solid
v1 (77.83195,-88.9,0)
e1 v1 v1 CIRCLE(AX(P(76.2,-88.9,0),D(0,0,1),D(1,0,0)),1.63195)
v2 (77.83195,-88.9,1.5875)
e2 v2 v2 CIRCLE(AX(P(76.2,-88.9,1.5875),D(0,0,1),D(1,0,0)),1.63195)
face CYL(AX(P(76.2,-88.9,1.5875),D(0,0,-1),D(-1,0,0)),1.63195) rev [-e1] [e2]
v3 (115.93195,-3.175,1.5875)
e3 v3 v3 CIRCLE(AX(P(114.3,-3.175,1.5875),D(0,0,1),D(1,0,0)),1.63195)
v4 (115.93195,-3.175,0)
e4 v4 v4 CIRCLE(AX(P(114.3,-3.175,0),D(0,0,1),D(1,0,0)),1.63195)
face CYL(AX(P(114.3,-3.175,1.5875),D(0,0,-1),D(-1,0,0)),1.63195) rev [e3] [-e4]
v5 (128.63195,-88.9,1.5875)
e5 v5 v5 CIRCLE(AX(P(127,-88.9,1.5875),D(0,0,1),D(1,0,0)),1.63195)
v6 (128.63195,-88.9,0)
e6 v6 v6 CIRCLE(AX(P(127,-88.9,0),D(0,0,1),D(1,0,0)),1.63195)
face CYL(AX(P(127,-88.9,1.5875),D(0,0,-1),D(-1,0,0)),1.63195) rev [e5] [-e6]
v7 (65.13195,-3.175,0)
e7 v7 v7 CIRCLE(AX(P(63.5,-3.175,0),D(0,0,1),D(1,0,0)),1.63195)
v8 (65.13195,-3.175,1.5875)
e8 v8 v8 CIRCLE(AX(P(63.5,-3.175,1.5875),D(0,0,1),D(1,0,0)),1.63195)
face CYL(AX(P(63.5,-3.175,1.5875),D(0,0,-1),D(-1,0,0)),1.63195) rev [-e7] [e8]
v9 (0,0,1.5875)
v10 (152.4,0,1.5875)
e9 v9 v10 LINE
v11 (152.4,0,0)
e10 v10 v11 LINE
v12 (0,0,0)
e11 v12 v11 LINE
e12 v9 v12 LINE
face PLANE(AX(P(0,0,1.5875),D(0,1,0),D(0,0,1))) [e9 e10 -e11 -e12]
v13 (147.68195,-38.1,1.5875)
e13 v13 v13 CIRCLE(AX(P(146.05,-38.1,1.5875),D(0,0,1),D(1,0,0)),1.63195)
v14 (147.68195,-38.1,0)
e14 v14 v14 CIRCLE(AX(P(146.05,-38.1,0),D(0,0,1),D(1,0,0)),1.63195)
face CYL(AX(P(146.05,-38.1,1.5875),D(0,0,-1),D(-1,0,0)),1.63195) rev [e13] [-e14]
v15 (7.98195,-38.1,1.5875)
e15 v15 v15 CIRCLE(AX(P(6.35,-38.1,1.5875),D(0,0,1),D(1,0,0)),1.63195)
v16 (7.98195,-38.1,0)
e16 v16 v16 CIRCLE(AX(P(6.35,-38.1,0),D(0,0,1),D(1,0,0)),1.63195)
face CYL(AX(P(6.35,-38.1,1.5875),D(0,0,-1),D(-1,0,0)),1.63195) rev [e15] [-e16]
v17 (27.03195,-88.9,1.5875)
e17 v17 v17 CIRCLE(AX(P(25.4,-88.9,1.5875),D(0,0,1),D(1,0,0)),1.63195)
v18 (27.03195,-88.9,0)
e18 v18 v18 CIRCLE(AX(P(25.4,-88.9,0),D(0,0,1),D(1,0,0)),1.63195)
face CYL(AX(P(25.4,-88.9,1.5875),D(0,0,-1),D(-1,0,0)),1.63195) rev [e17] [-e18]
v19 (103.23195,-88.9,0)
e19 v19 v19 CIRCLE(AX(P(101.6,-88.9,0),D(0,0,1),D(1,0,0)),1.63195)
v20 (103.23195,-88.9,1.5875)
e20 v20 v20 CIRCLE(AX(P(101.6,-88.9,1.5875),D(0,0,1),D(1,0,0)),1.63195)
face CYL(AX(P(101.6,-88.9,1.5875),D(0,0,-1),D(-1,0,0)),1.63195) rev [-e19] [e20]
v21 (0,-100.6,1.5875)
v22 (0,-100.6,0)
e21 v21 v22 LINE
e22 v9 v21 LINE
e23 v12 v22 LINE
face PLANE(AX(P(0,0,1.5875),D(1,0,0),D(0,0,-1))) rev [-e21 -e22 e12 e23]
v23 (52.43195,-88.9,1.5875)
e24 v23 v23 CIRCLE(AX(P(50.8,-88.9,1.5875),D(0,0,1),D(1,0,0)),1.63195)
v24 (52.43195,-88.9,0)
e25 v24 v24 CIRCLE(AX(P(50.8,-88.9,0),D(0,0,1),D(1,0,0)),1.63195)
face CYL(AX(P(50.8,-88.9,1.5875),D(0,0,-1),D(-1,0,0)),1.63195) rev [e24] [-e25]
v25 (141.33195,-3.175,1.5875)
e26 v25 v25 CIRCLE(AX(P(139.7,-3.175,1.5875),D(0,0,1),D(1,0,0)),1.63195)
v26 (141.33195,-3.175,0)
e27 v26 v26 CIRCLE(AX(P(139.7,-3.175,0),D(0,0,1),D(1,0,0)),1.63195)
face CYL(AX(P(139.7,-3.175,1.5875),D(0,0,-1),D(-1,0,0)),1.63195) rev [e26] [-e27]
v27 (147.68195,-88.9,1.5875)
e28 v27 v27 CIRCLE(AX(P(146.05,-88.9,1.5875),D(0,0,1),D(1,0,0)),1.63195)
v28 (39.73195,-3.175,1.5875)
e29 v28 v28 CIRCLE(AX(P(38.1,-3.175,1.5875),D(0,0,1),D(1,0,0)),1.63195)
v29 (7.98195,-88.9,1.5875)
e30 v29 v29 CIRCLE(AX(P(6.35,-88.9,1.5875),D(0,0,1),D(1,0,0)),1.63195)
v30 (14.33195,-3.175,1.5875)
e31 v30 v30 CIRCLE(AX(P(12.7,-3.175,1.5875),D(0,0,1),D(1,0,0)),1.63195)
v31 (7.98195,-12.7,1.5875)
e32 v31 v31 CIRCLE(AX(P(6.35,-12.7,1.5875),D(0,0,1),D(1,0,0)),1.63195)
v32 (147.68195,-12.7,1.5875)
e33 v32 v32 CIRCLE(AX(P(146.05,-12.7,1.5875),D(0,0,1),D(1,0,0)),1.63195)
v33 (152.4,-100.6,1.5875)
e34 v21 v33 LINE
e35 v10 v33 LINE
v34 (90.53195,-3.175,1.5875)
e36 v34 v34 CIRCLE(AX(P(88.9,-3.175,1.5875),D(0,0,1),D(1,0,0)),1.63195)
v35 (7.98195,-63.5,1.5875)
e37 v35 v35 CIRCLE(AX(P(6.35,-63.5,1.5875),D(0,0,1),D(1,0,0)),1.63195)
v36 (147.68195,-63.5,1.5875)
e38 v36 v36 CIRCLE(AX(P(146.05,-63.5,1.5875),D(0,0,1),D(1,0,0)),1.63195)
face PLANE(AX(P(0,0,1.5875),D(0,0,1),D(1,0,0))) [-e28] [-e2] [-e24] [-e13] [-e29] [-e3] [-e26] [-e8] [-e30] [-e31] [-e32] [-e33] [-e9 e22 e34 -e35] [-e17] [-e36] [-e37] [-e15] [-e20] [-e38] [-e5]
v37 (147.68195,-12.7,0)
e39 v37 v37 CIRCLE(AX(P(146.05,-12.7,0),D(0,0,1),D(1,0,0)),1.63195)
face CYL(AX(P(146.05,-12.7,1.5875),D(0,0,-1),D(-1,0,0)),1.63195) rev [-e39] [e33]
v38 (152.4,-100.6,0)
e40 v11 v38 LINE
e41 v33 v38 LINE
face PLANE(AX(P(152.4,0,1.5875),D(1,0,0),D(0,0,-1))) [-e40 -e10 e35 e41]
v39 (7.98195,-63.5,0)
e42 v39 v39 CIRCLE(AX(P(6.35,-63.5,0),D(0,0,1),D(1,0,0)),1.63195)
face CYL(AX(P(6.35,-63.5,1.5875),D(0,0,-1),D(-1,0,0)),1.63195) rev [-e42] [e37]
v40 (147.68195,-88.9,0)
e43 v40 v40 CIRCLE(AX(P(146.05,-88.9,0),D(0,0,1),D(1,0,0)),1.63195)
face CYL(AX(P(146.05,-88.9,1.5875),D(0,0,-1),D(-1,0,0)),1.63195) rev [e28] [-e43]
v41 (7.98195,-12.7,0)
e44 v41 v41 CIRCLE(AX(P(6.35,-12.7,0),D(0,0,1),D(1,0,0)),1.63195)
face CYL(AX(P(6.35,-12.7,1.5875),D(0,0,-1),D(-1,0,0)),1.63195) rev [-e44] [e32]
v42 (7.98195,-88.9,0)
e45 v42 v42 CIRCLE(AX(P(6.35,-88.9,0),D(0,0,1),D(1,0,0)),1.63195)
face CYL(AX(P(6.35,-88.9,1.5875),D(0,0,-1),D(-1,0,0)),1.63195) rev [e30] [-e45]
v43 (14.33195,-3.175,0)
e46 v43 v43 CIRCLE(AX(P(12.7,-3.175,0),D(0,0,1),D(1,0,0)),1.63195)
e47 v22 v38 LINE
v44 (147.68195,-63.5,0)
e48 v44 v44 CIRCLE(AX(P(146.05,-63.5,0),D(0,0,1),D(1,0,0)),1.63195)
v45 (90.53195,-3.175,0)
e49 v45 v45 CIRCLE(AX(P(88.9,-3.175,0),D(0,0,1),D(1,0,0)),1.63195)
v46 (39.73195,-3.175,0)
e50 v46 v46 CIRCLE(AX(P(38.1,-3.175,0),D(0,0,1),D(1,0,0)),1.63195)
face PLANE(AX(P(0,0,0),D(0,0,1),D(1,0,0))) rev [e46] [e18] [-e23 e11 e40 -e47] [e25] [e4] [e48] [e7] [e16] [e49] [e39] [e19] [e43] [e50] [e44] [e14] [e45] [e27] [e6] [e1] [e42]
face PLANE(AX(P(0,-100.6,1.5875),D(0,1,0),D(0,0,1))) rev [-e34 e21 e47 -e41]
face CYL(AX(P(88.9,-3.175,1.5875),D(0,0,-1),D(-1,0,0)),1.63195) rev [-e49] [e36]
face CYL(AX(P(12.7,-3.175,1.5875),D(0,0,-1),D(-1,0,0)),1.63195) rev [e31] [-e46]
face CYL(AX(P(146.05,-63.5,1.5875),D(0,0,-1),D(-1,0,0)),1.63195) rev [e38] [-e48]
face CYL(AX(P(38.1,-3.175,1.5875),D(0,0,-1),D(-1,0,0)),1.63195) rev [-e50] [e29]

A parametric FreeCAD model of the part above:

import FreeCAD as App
import Part
import Sketcher
Q = App.Units.Quantity

doc = App.newDocument("Part")
params = doc.addObject("Spreadsheet::Sheet", "Params")
for row, (alias, value) in enumerate([
    ("sketch1_width", "6 in"),
    ("pad1_length", "0.0625 in"),
], start=1):
    params.set(f"A{row}", alias)
    params.set(f"B{row}", "=" + value)
    params.setAlias(f"B{row}", alias)

body = doc.addObject("PartDesign::Body", "Body")

sketch1 = body.newObject("Sketcher::SketchObject", "Sketch")
sketch1.AttachmentSupport = (doc.getObject("XY_Plane"), [""])
sketch1.MapMode = "FlatFace"
sketch1.addGeometry([
    Part.LineSegment(App.Vector(0, 0, 0), App.Vector(0, -100.6, 0)),
    Part.LineSegment(App.Vector(0, -100.6, 0), App.Vector(152.4, -100.6, 0)),
    Part.LineSegment(App.Vector(152.4, -100.6, 0), App.Vector(152.4, 0, 0)),
    Part.LineSegment(App.Vector(152.4, 0, 0), App.Vector(0, 0, 0)),
    Part.Circle(App.Vector(6.3, -88.9, 0), App.Vector(0, 0, 1), 1.6),
    Part.Circle(App.Vector(25.4, -88.9, 0), App.Vector(0, 0, 1), 1.6),
    Part.Circle(App.Vector(50.8, -88.9, 0), App.Vector(0, 0, 1), 1.6),
    Part.Circle(App.Vector(76.2, -88.9, 0), App.Vector(0, 0, 1), 1.6),
    Part.Circle(App.Vector(6.3, -63.5, 0), App.Vector(0, 0, 1), 1.6),
    Part.Circle(App.Vector(101.6, -88.9, 0), App.Vector(0, 0, 1), 1.6),
    Part.Circle(App.Vector(127, -88.9, 0), App.Vector(0, 0, 1), 1.6),
    Part.Circle(App.Vector(146.1, -88.9, 0), App.Vector(0, 0, 1), 1.6),
    Part.Circle(App.Vector(146.1, -63.5, 0), App.Vector(0, 0, 1), 1.6),
    Part.Circle(App.Vector(6.3, -38.1, 0), App.Vector(0, 0, 1), 1.6),
    Part.Circle(App.Vector(6.3, -12.7, 0), App.Vector(0, 0, 1), 1.6),
    Part.Circle(App.Vector(12.7, -3.2, 0), App.Vector(0, 0, 1), 1.6),
    Part.Circle(App.Vector(38.1, -3.2, 0), App.Vector(0, 0, 1), 1.6),
    Part.Circle(App.Vector(63.5, -3.2, 0), App.Vector(0, 0, 1), 1.6),
    Part.Circle(App.Vector(146.1, -38.1, 0), App.Vector(0, 0, 1), 1.6),
    Part.Circle(App.Vector(88.9, -3.2, 0), App.Vector(0, 0, 1), 1.6),
    Part.Circle(App.Vector(146.1, -12.7, 0), App.Vector(0, 0, 1), 1.6),
    Part.Circle(App.Vector(114.3, -3.2, 0), App.Vector(0, 0, 1), 1.6),
    Part.Circle(App.Vector(139.7, -3.2, 0), App.Vector(0, 0, 1), 1.6),
], False)
sketch1.addConstraint([
    Sketcher.Constraint("Coincident", 0, 2, 1, 1),
    Sketcher.Constraint("Coincident", 1, 2, 2, 1),
    Sketcher.Constraint("Coincident", 2, 2, 3, 1),
    Sketcher.Constraint("Coincident", 3, 2, 0, 1),
    Sketcher.Constraint("Vertical", 0),
    Sketcher.Constraint("Horizontal", 1),
    Sketcher.Constraint("Vertical", 2),
    Sketcher.Constraint("Horizontal", 3),
    Sketcher.Constraint("Coincident", 3, 2, -1, 1),
    Sketcher.Constraint("Equal", 4, 5),
    Sketcher.Constraint("Equal", 5, 6),
    Sketcher.Constraint("Equal", 6, 7),
    Sketcher.Constraint("Equal", 7, 8),
    Sketcher.Constraint("Equal", 8, 9),
    Sketcher.Constraint("Equal", 9, 10),
    Sketcher.Constraint("Equal", 10, 11),
    Sketcher.Constraint("Equal", 11, 12),
    Sketcher.Constraint("Equal", 12, 13),
    Sketcher.Constraint("Equal", 13, 14),
    Sketcher.Constraint("Equal", 14, 15),
    Sketcher.Constraint("Equal", 15, 16),
    Sketcher.Constraint("Equal", 16, 17),
    Sketcher.Constraint("Equal", 17, 18),
    Sketcher.Constraint("Equal", 18, 19),
    Sketcher.Constraint("Equal", 19, 20),
    Sketcher.Constraint("Equal", 20, 21),
    Sketcher.Constraint("Equal", 21, 22),
    Sketcher.Constraint("Horizontal", 4, 3, 5, 3),
    Sketcher.Constraint("Horizontal", 5, 3, 6, 3),
    Sketcher.Constraint("Horizontal", 6, 3, 7, 3),
    Sketcher.Constraint("Horizontal", 7, 3, 9, 3),
    Sketcher.Constraint("Horizontal", 9, 3, 10, 3),
    Sketcher.Constraint("Horizontal", 10, 3, 11, 3),
    Sketcher.Constraint("Horizontal", 8, 3, 12, 3),
    Sketcher.Constraint("Horizontal", 15, 3, 16, 3),
    Sketcher.Constraint("Horizontal", 16, 3, 17, 3),
    Sketcher.Constraint("Horizontal", 13, 3, 18, 3),
    Sketcher.Constraint("Horizontal", 17, 3, 19, 3),
    Sketcher.Constraint("Horizontal", 14, 3, 20, 3),
    Sketcher.Constraint("Horizontal", 19, 3, 21, 3),
    Sketcher.Constraint("Horizontal", 21, 3, 22, 3),
    Sketcher.Constraint("Vertical", 4, 3, 8, 3),
    Sketcher.Constraint("Vertical", 11, 3, 12, 3),
    Sketcher.Constraint("Vertical", 8, 3, 13, 3),
    Sketcher.Constraint("Vertical", 13, 3, 14, 3),
    Sketcher.Constraint("Vertical", 12, 3, 18, 3),
    Sketcher.Constraint("Vertical", 18, 3, 20, 3),
    Sketcher.Constraint("DistanceX", 1, 1, 1, 2, Q("6 in")),
    Sketcher.Constraint("DistanceX", -1, 1, 5, 3, Q("1 in")),
    Sketcher.Constraint("DistanceX", -1, 1, 6, 3, Q("2 in")),
    Sketcher.Constraint("DistanceX", -1, 1, 7, 3, Q("3 in")),
    Sketcher.Constraint("DistanceX", -1, 1, 9, 3, Q("4 in")),
    Sketcher.Constraint("DistanceX", -1, 1, 10, 3, Q("5 in")),
    Sketcher.Constraint("DistanceY", 4, 3, 8, 3, Q("1 in")),
    Sketcher.Constraint("DistanceY", 8, 3, 13, 3, Q("1 in")),
    Sketcher.Constraint("DistanceY", 13, 3, 14, 3, Q("1 in")),
    Sketcher.Constraint("DistanceX", 15, 3, 16, 3, Q("1 in")),
    Sketcher.Constraint("DistanceX", 16, 3, 17, 3, Q("1 in")),
    Sketcher.Constraint("DistanceX", 17, 3, 19, 3, Q("1 in")),
    Sketcher.Constraint("DistanceX", 19, 3, 21, 3, Q("1 in")),
    Sketcher.Constraint("DistanceX", 21, 3, 22, 3, Q("1 in")),
    Sketcher.Constraint("Diameter", 4, Q("0.1285 in")),
    Sketcher.Constraint("DistanceY", 4, 3, -1, 1, Q("3.5 in")),
    Sketcher.Constraint("DistanceX", -1, 1, 15, 3, Q("0.5 in")),
    Sketcher.Constraint("DistanceX", -1, 1, 4, 3, Q("0.25 in")),
    Sketcher.Constraint("DistanceX", -1, 1, 11, 3, Q("5.75 in")),
    Sketcher.Constraint("DistanceY", 15, 3, -1, 1, Q("0.125 in")),
    Sketcher.Constraint("DistanceY", 0, 2, 0, 1, 100.6),
])
sketch1.setExpression("Constraints[47]", "Params.sketch1_width")
pad1 = body.newObject("PartDesign::Pad", "Pad")
pad1.Profile = sketch1
pad1.setExpression("Length", "Params.pad1_length")

doc.recompute()
